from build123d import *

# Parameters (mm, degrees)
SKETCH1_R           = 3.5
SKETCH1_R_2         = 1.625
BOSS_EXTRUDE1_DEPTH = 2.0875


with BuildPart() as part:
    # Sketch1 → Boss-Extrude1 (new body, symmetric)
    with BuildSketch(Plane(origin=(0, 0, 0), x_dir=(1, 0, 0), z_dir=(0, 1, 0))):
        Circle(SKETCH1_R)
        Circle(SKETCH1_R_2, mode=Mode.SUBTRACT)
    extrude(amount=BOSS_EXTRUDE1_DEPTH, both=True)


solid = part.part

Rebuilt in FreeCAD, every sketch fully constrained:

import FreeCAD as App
import Part
import Sketcher

V = App.Vector
Q = App.Units.Quantity

doc = App.newDocument("Part")
body = doc.addObject("PartDesign::Body", "Body")

# Sketch on XZ plane
sketch1 = body.newObject("Sketcher::SketchObject", "Sketch")
sketch1.AttachmentSupport = (doc.getObject("XZ_Plane"), [""])
sketch1.MapMode = "FlatFace"
sketch1.addGeometry(Part.Circle(V(0, 0, 0), V(0, 0, 1), 3.5), False)
sketch1.addGeometry(Part.Circle(V(0, 0, 0), V(0, 0, 1), 1.625), False)
sketch1.addConstraint(Sketcher.Constraint("Coincident", 0, 3, -1, 1))
sketch1.addConstraint(Sketcher.Constraint("Coincident", 1, 3, -1, 1))
sketch1.addConstraint(Sketcher.Constraint("Diameter", 0, Q("7 mm")))
sketch1.addConstraint(Sketcher.Constraint("Diameter", 1, Q("3.25 mm")))
pad1 = body.newObject("PartDesign::Pad", "Pad")
pad1.Profile = sketch1
pad1.Length = 4.175
pad1.Midplane = True

doc.recompute()
